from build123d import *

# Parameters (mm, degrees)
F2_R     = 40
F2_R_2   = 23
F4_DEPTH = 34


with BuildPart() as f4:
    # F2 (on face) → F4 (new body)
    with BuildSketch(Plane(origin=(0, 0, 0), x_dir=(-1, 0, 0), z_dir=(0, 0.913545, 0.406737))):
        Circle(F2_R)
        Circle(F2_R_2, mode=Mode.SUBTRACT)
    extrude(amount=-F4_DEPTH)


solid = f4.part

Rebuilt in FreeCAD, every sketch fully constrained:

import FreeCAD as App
import Part
import Sketcher

doc = App.newDocument("Part")
params = doc.addObject("Spreadsheet::Sheet", "Params")
for row, (alias, value) in enumerate([
    ("sketch1_diameter", "80 mm"),
    ("sketch1_diameter2", "46 mm"),
    ("pad1_length", "34 mm"),
], start=1):
    params.set(f"A{row}", alias)
    params.set(f"B{row}", "=" + value)
    params.setAlias(f"B{row}", alias)

body = doc.addObject("PartDesign::Body", "Body")

sketch1 = body.newObject("Sketcher::SketchObject", "Sketch")
sketch1.Placement = App.Placement(App.Vector(0, 0, 0), App.Rotation(App.Vector(-1, 0, 0), App.Vector(0, -0.406737111, 0.913545249), App.Vector(0, 0.913545249, 0.406737111), "ZXY"))
sketch1.addGeometry(Part.Circle(App.Vector(0, 0, 0), App.Vector(0, 0, 1), 40), False)
sketch1.addGeometry(Part.Circle(App.Vector(0, 0, 0), App.Vector(0, 0, 1), 23), False)
sketch1.addConstraint(Sketcher.Constraint("Coincident", 0, 3, -1, 1))
sketch1.addConstraint(Sketcher.Constraint("Coincident", 1, 3, -1, 1))
sketch1.addConstraint(Sketcher.Constraint("Diameter", 0, 80.0))
sketch1.addConstraint(Sketcher.Constraint("Diameter", 1, 46.0))
sketch1.setExpression("Constraints[2]", "Params.sketch1_diameter")
sketch1.setExpression("Constraints[3]", "Params.sketch1_diameter2")
pad1 = body.newObject("PartDesign::Pad", "Pad")
pad1.Profile = sketch1
pad1.setExpression("Length", "Params.pad1_length")
pad1.Reversed = True

doc.recompute()
